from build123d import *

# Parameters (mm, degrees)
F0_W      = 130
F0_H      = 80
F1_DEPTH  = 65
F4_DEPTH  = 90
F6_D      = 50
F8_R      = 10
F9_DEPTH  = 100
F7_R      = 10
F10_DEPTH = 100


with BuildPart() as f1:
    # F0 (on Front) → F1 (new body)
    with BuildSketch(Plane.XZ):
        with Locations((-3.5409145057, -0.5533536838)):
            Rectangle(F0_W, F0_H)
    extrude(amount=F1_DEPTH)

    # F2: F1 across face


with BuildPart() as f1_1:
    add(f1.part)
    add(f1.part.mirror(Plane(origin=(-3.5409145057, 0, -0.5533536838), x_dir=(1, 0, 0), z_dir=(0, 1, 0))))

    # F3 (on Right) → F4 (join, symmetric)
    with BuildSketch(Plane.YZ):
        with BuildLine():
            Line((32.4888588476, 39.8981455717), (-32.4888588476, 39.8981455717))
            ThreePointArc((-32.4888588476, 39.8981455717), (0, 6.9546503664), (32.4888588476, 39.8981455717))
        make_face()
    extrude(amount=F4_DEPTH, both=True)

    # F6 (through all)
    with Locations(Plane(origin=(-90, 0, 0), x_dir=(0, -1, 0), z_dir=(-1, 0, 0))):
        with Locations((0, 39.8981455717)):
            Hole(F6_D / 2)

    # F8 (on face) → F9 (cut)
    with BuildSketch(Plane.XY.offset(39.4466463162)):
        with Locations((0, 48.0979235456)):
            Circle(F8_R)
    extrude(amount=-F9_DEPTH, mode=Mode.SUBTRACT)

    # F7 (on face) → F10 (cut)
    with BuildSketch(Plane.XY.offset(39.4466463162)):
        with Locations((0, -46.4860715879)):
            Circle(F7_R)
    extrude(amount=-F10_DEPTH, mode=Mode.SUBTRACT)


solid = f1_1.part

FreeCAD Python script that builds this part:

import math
import FreeCAD as App
import Part
import Sketcher


def add_polygon(sketch, points):
    """Adds a closed chain of lines whose ends are joined by coincident constraints."""
    first, n = sketch.GeometryCount, len(points)
    for a, b in zip(points, points[1:] + points[:1]):
        sketch.addGeometry(Part.LineSegment(App.Vector(*a, 0), App.Vector(*b, 0)), False)
    for i in range(n):
        sketch.addConstraint(Sketcher.Constraint("Coincident", first + i, 2, first + (i + 1) % n, 1))

doc = App.newDocument("Part")
body = doc.addObject("PartDesign::Body", "Body")

# Sketch on XZ plane
sketch1 = body.newObject("Sketcher::SketchObject", "Sketch")
sketch1.AttachmentSupport = (doc.getObject("XZ_Plane"), [""])
sketch1.MapMode = "FlatFace"
add_polygon(sketch1, [(-68.540915, 39.446646), (-68.540915, -40.553354), (61.459085, -40.553354), (61.459085, 39.446646)])  # lines 0-3
sketch1.addConstraint([
    Sketcher.Constraint("Vertical", 0),
    Sketcher.Constraint("Horizontal", 1),
    Sketcher.Constraint("Vertical", 2),
    Sketcher.Constraint("Horizontal", 3),
    Sketcher.Constraint("DistanceX", 1, 1, 1, 2, 130.0),
    Sketcher.Constraint("DistanceY", 0, 2, 0, 1, 80.0),
    Sketcher.Constraint("DistanceX", 0, 2, -1, 1, 68.540915),
    Sketcher.Constraint("DistanceY", 0, 2, -1, 1, 40.553354),
])
pad1 = body.newObject("PartDesign::Pad", "Pad")
pad1.Profile = sketch1
pad1.Length = 65
body2 = doc.addObject("PartDesign::Body", "Body001")
doc.recompute()

body2.BaseFeature = body
doc.recompute()

mirroring = doc.addObject("Part::Mirroring", "Mirroring")
mirroring.Source = body
mirroring.Base = App.Vector(-3.540915, 0, -0.553354)
mirroring.Normal = App.Vector(0, 1, 0)
body3 = doc.addObject("PartDesign::Body", "Body002")
body3.BaseFeature = mirroring
boolean = body2.newObject("PartDesign::Boolean", "Boolean")
boolean.Type = "Fuse"
boolean.addObjects([body3])
doc.recompute()

# Sketch on YZ plane
sketch2 = body2.newObject("Sketcher::SketchObject", "Sketch001")
sketch2.AttachmentSupport = (doc.getObject("YZ_Plane001"), [""])
sketch2.MapMode = "FlatFace"
sketch2.addGeometry([
    Part.LineSegment(App.Vector(32.488859, 39.898146, 0), App.Vector(-32.488859, 39.898146, 0)),
    Part.ArcOfCircle(Part.Circle(App.Vector(0, 39.446646, 0), App.Vector(0, 0, 1), 32.491996), math.radians(179.203809), math.radians(360.796191)),
], False)
sketch2.addConstraint([
    Sketcher.Constraint("Coincident", 0, 1, 1, 2),
    Sketcher.Constraint("Coincident", 1, 1, 0, 2),
    Sketcher.Constraint("Horizontal", 0),
    Sketcher.Constraint("PointOnObject", 1, 3, -2),
    Sketcher.Constraint("Radius", 1, 32.491996),
    Sketcher.Constraint("DistanceY", 1, 3, 0, 1, 0.451499),
    Sketcher.Constraint("DistanceY", -1, 1, 1, 3, 39.446646),
])
pad2 = body2.newObject("PartDesign::Pad", "Pad001")
pad2.Profile = sketch2
pad2.Length = 180
pad2.Midplane = True

# Sketch on YZ plane
sketch3 = body2.newObject("Sketcher::SketchObject", "Sketch002")
sketch3.AttachmentSupport = (doc.getObject("YZ_Plane001"), [""])
sketch3.MapMode = "FlatFace"
sketch3.AttachmentOffset = App.Placement(App.Vector(0, 0, -90), App.Rotation())
sketch3.addGeometry(Part.Circle(App.Vector(0, 39.898146, 0), App.Vector(0, 0, 1), 25), False)
sketch3.addConstraint([
    Sketcher.Constraint("PointOnObject", 0, 3, -2),
    Sketcher.Constraint("Diameter", 0, 50.0),
    Sketcher.Constraint("DistanceY", -1, 1, 0, 3, 39.898146),
])
doc.recompute()
hole = body2.newObject("PartDesign::Hole", "Hole")
hole.Profile = sketch3
hole.ThreadType = "None"
hole.Diameter = 50
hole.DepthType = "ThroughAll"
hole.Reversed = True

# Sketch on XY plane
sketch4 = body2.newObject("Sketcher::SketchObject", "Sketch003")
sketch4.AttachmentSupport = (doc.getObject("XY_Plane001"), [""])
sketch4.MapMode = "FlatFace"
sketch4.AttachmentOffset = App.Placement(App.Vector(0, 0, 39.446646), App.Rotation())
sketch4.addGeometry(Part.Circle(App.Vector(0, 48.097924, 0), App.Vector(0, 0, 1), 10), False)
sketch4.addConstraint([
    Sketcher.Constraint("PointOnObject", 0, 3, -2),
    Sketcher.Constraint("Diameter", 0, 20.0),
    Sketcher.Constraint("DistanceY", -1, 1, 0, 3, 48.097924),
])
pocket1 = body2.newObject("PartDesign::Pocket", "Pocket")
pocket1.Profile = sketch4
pocket1.Length = 100

# Sketch on XY plane
sketch5 = body2.newObject("Sketcher::SketchObject", "Sketch004")
sketch5.AttachmentSupport = (doc.getObject("XY_Plane001"), [""])
sketch5.MapMode = "FlatFace"
sketch5.AttachmentOffset = App.Placement(App.Vector(0, 0, 39.446646), App.Rotation())
sketch5.addGeometry(Part.Circle(App.Vector(0, -46.486072, 0), App.Vector(0, 0, 1), 10), False)
sketch5.addConstraint([
    Sketcher.Constraint("PointOnObject", 0, 3, -2),
    Sketcher.Constraint("Diameter", 0, 20.0),
    Sketcher.Constraint("DistanceY", 0, 3, -1, 1, 46.486072),
])
pocket2 = body2.newObject("PartDesign::Pocket", "Pocket001")
pocket2.Profile = sketch5
pocket2.Length = 100
mirroring.Visibility = False

doc.recompute()
